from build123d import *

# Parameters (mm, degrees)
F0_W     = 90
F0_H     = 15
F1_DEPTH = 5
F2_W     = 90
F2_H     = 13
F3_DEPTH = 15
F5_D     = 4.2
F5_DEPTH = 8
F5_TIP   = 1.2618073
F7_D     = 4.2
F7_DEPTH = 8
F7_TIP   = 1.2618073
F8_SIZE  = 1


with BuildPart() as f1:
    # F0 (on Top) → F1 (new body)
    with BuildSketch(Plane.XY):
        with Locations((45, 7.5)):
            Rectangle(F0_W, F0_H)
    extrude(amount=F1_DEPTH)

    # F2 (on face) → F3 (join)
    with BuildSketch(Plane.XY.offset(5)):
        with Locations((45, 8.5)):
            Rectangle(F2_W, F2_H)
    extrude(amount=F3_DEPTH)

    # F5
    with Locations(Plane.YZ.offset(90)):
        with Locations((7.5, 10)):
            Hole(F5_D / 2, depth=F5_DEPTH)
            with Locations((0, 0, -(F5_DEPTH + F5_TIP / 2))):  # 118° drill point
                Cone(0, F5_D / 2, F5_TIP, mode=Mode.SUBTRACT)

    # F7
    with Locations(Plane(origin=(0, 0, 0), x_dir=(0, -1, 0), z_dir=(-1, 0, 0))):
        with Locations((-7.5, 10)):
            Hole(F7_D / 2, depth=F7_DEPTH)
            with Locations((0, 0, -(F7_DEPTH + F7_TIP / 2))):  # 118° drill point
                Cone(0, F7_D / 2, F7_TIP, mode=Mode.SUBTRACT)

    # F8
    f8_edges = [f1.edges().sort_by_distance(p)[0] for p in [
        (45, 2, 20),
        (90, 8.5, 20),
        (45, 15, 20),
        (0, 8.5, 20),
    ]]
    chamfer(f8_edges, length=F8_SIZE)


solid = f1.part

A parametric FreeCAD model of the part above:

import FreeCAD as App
import Part
import Sketcher
from FreeCAD import Vector
Q = App.Units.Quantity


def edges_at(feature, points):
    """Names of the edges that pass closest to the given points."""
    edges = feature.Shape.Edges
    near = lambda p: min(range(len(edges)), key=lambda i: edges[i].distToShape(Part.Vertex(*p))[0])
    return sorted({f"Edge{near(p) + 1}" for p in points})


def add_polygon(sketch, points):
    """Adds a closed chain of lines whose ends are joined by coincident constraints."""
    first, n = sketch.GeometryCount, len(points)
    for a, b in zip(points, points[1:] + points[:1]):
        sketch.addGeometry(Part.LineSegment(App.Vector(*a, 0), App.Vector(*b, 0)), False)
    for i in range(n):
        sketch.addConstraint(Sketcher.Constraint("Coincident", first + i, 2, first + (i + 1) % n, 1))

doc = App.newDocument("Part")
params = doc.addObject("Spreadsheet::Sheet", "Params")
for row, (alias, value) in enumerate([
    ("sketch1_width", "90 mm"),
    ("sketch1_height", "15 mm"),
    ("pad1_length", "5 mm"),
    ("sketch2_width", "90 mm"),
    ("sketch2_height", "13 mm"),
    ("pad2_length", "15 mm"),
    ("sketch3_diameter", "4.2 mm"),
    ("hole_diameter", "4.2 mm"),
    ("hole_depth", "8 mm"),
    ("sketch4_diameter", "4.2 mm"),
    ("hole2_diameter", "4.2 mm"),
    ("hole2_depth", "8 mm"),
    ("chamfer_size", "1 mm"),
], start=1):
    params.set(f"A{row}", alias)
    params.set(f"B{row}", "=" + value)
    params.setAlias(f"B{row}", alias)

body = doc.addObject("PartDesign::Body", "Body")

# Sketch on XY plane
sketch1 = doc.addObject("Sketcher::SketchObject", "Sketch")
body.addObject(sketch1)
sketch1.AttachmentSupport = (doc.XY_Plane, [""])
sketch1.MapMode = "FlatFace"
add_polygon(sketch1, [(0, 15), (0, 0), (90, 0), (90, 15)])  # lines 0-3
sketch1.addConstraint([
    Sketcher.Constraint("Vertical", 0),
    Sketcher.Constraint("Horizontal", 1),
    Sketcher.Constraint("Vertical", 2),
    Sketcher.Constraint("Horizontal", 3),
    Sketcher.Constraint("Coincident", 0, 2, -1, 1),
    Sketcher.Constraint("DistanceX", 1, 1, 1, 2, Q("90 mm")),
    Sketcher.Constraint("DistanceY", 0, 2, 0, 1, Q("15 mm")),
])
sketch1.setExpression("Constraints[9]", "Params.sketch1_width")
sketch1.setExpression("Constraints[10]", "Params.sketch1_height")
pad1 = doc.addObject("PartDesign::Pad", "Pad")
body.addObject(pad1)
pad1.Profile = sketch1
pad1.setExpression("Length", "Params.pad1_length")

# Sketch on XY plane
sketch2 = doc.addObject("Sketcher::SketchObject", "Sketch001")
body.addObject(sketch2)
sketch2.AttachmentSupport = (doc.XY_Plane, [""])
sketch2.MapMode = "FlatFace"
sketch2.AttachmentOffset = App.Placement(Vector(0, 0, 5), App.Rotation())
add_polygon(sketch2, [(0, 15), (0, 2), (90, 2), (90, 15)])  # lines 0-3
sketch2.addConstraint([
    Sketcher.Constraint("Vertical", 0),
    Sketcher.Constraint("Horizontal", 1),
    Sketcher.Constraint("Vertical", 2),
    Sketcher.Constraint("Horizontal", 3),
    Sketcher.Constraint("PointOnObject", 0, 2, -2),
    Sketcher.Constraint("DistanceX", 1, 1, 1, 2, Q("90 mm")),
    Sketcher.Constraint("DistanceY", 0, 2, 0, 1, Q("13 mm")),
    Sketcher.Constraint("DistanceY", -1, 1, 0, 2, Q("2 mm")),
])
sketch2.setExpression("Constraints[9]", "Params.sketch2_width")
sketch2.setExpression("Constraints[10]", "Params.sketch2_height")
pad2 = doc.addObject("PartDesign::Pad", "Pad001")
body.addObject(pad2)
pad2.Profile = sketch2
pad2.setExpression("Length", "Params.pad2_length")

# Sketch on YZ plane
sketch3 = doc.addObject("Sketcher::SketchObject", "Sketch002")
body.addObject(sketch3)
sketch3.AttachmentSupport = (doc.YZ_Plane, [""])
sketch3.MapMode = "FlatFace"
sketch3.AttachmentOffset = App.Placement(Vector(0, 0, 90), App.Rotation())
sketch3.addGeometry(Part.Circle(Vector(7.5, 10, 0), Vector(0, 0, 1), 2.1), False)
sketch3.addConstraint([
    Sketcher.Constraint("Diameter", 0, Q("4.2 mm")),
    Sketcher.Constraint("DistanceY", -1, 1, 0, 3, Q("10 mm")),
    Sketcher.Constraint("DistanceX", -1, 1, 0, 3, Q("7.5 mm")),
])
sketch3.setExpression("Constraints[0]", "Params.sketch3_diameter")
doc.recompute()
hole = doc.addObject("PartDesign::Hole", "Hole")
body.addObject(hole)
hole.Profile = sketch3
hole.ThreadType = "None"
hole.setExpression("Diameter", "Params.hole_diameter")
hole.DepthType = "Dimension"
hole.setExpression("Depth", "Params.hole_depth")
hole.DrillPoint = "Angled"
hole.DrillPointAngle = 118

# Sketch on YZ plane
sketch4 = doc.addObject("Sketcher::SketchObject", "Sketch003")
body.addObject(sketch4)
sketch4.AttachmentSupport = (doc.YZ_Plane, [""])
sketch4.MapMode = "FlatFace"
sketch4.addGeometry(Part.Circle(Vector(7.5, 10, 0), Vector(0, 0, 1), 2.1), False)
sketch4.addConstraint([
    Sketcher.Constraint("Diameter", 0, Q("4.2 mm")),
    Sketcher.Constraint("DistanceY", -1, 1, 0, 3, Q("10 mm")),
    Sketcher.Constraint("DistanceX", -1, 1, 0, 3, Q("7.5 mm")),
])
sketch4.setExpression("Constraints[0]", "Params.sketch4_diameter")
doc.recompute()
hole2 = doc.addObject("PartDesign::Hole", "Hole001")
body.addObject(hole2)
hole2.Profile = sketch4
hole2.ThreadType = "None"
hole2.setExpression("Diameter", "Params.hole2_diameter")
hole2.DepthType = "Dimension"
hole2.setExpression("Depth", "Params.hole2_depth")
hole2.DrillPoint = "Angled"
hole2.DrillPointAngle = 118
hole2.Reversed = True
doc.recompute()

chamfer = doc.addObject("PartDesign::Chamfer", "Chamfer")
body.addObject(chamfer)
chamfer.Base = (hole2, edges_at(hole2, [
    (45, 2, 20),
    (90, 8.5, 20),
    (45, 15, 20),
    (0, 8.5, 20),
]))
chamfer.setExpression("Size", "Params.chamfer_size")

doc.recompute()
